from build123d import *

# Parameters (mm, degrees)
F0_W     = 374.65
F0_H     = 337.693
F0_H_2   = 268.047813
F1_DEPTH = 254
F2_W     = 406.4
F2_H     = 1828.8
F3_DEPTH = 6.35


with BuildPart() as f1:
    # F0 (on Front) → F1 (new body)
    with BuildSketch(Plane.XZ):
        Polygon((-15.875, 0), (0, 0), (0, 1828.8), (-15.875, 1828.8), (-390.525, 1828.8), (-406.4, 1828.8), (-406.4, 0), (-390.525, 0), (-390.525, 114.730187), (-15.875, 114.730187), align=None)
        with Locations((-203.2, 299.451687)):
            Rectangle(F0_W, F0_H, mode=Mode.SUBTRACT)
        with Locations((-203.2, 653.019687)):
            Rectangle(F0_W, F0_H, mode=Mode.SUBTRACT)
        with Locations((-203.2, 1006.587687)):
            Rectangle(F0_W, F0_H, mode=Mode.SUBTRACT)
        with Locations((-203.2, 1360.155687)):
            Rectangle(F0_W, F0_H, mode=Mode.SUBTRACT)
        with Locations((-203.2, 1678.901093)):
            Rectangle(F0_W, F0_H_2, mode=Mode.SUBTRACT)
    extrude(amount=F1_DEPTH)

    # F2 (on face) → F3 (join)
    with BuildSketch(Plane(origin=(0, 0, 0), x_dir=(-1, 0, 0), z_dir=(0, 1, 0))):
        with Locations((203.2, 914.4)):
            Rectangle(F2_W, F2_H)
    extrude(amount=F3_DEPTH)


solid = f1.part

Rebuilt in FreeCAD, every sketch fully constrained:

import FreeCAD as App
import Part
import Sketcher
from FreeCAD import Vector
Q = App.Units.Quantity


def add_polygon(sketch, points):
    """Adds a closed chain of lines whose ends are joined by coincident constraints."""
    first, n = sketch.GeometryCount, len(points)
    for a, b in zip(points, points[1:] + points[:1]):
        sketch.addGeometry(Part.LineSegment(App.Vector(*a, 0), App.Vector(*b, 0)), False)
    for i in range(n):
        sketch.addConstraint(Sketcher.Constraint("Coincident", first + i, 2, first + (i + 1) % n, 1))

doc = App.newDocument("Part")
body = doc.addObject("PartDesign::Body", "Body")

sketch1 = body.newObject("Sketcher::SketchObject", "Sketch")
sketch1.AttachmentSupport = (doc.getObject("XZ_Plane"), [""])
sketch1.MapMode = "FlatFace"
add_polygon(sketch1, [(-15.875, 0), (0, 0), (0, 1828.8), (-406.4, 1828.8), (-406.4, 0), (-390.525, 0), (-390.525, 114.730187), (-15.875, 114.730187)])
add_polygon(sketch1, [(-15.875, 130.605187), (-390.525, 130.605187), (-390.525, 468.298187), (-15.875, 468.298187)])
add_polygon(sketch1, [(-15.875, 484.173187), (-390.525, 484.173187), (-390.525, 821.866187), (-15.875, 821.866187)])
add_polygon(sketch1, [(-15.875, 837.741187), (-390.525, 837.741187), (-390.525, 1175.434187), (-15.875, 1175.434187)])
add_polygon(sketch1, [(-15.875, 1191.309187), (-390.525, 1191.309187), (-390.525, 1529.002187), (-15.875, 1529.002187)])
add_polygon(sketch1, [(-15.875, 1544.877187), (-390.525, 1544.877187), (-390.525, 1812.925), (-15.875, 1812.925)])
sketch1.addConstraint(Sketcher.Constraint("Horizontal", 0))
sketch1.addConstraint(Sketcher.Constraint("Vertical", 1))
sketch1.addConstraint(Sketcher.Constraint("Horizontal", 2))
sketch1.addConstraint(Sketcher.Constraint("Vertical", 3))
sketch1.addConstraint(Sketcher.Constraint("Horizontal", 4))
sketch1.addConstraint(Sketcher.Constraint("Vertical", 5))
sketch1.addConstraint(Sketcher.Constraint("Horizontal", 6))
sketch1.addConstraint(Sketcher.Constraint("Vertical", 7))
sketch1.addConstraint(Sketcher.Constraint("Horizontal", 8))
sketch1.addConstraint(Sketcher.Constraint("Vertical", 9))
sketch1.addConstraint(Sketcher.Constraint("Horizontal", 10))
sketch1.addConstraint(Sketcher.Constraint("Vertical", 11))
sketch1.addConstraint(Sketcher.Constraint("Horizontal", 12))
sketch1.addConstraint(Sketcher.Constraint("Vertical", 13))
sketch1.addConstraint(Sketcher.Constraint("Horizontal", 14))
sketch1.addConstraint(Sketcher.Constraint("Vertical", 15))
sketch1.addConstraint(Sketcher.Constraint("Horizontal", 16))
sketch1.addConstraint(Sketcher.Constraint("Vertical", 17))
sketch1.addConstraint(Sketcher.Constraint("Horizontal", 18))
sketch1.addConstraint(Sketcher.Constraint("Vertical", 19))
sketch1.addConstraint(Sketcher.Constraint("Horizontal", 20))
sketch1.addConstraint(Sketcher.Constraint("Vertical", 21))
sketch1.addConstraint(Sketcher.Constraint("Horizontal", 22))
sketch1.addConstraint(Sketcher.Constraint("Vertical", 23))
sketch1.addConstraint(Sketcher.Constraint("Horizontal", 24))
sketch1.addConstraint(Sketcher.Constraint("Vertical", 25))
sketch1.addConstraint(Sketcher.Constraint("Horizontal", 26))
sketch1.addConstraint(Sketcher.Constraint("Vertical", 27))
sketch1.addConstraint(Sketcher.Constraint("Coincident", 0, 2, -1, 1))
sketch1.addConstraint(Sketcher.Constraint("PointOnObject", 3, 2, -1))
sketch1.addConstraint(Sketcher.Constraint("Vertical", 5, 2, 8, 2))
sketch1.addConstraint(Sketcher.Constraint("Vertical", 7, 2, 10, 2))
sketch1.addConstraint(Sketcher.Constraint("Vertical", 9, 2, 12, 2))
sketch1.addConstraint(Sketcher.Constraint("Vertical", 11, 2, 14, 2))
sketch1.addConstraint(Sketcher.Constraint("Vertical", 13, 2, 16, 2))
sketch1.addConstraint(Sketcher.Constraint("Vertical", 15, 2, 18, 2))
sketch1.addConstraint(Sketcher.Constraint("Vertical", 17, 2, 20, 2))
sketch1.addConstraint(Sketcher.Constraint("Vertical", 19, 2, 22, 2))
sketch1.addConstraint(Sketcher.Constraint("Vertical", 21, 2, 24, 2))
sketch1.addConstraint(Sketcher.Constraint("Vertical", 23, 2, 26, 2))
sketch1.addConstraint(Sketcher.Constraint("Equal", 0, 4))
sketch1.addConstraint(Sketcher.Constraint("Equal", 11, 13))
sketch1.addConstraint(Sketcher.Constraint("Equal", 15, 17))
sketch1.addConstraint(Sketcher.Constraint("Equal", 19, 21))
sketch1.addConstraint(Sketcher.Constraint("DistanceX", 2, 2, 2, 1, Q("16 in")))
sketch1.addConstraint(Sketcher.Constraint("DistanceY", 1, 1, 1, 2, Q("72 in")))
sketch1.addConstraint(Sketcher.Constraint("DistanceX", 6, 1, 6, 2, Q("14.75 in")))
sketch1.addConstraint(Sketcher.Constraint("DistanceY", 9, 1, 9, 2, Q("13.295 in")))
sketch1.addConstraint(Sketcher.Constraint("DistanceY", 5, 2, 9, 2, Q("13.92 in")))
sketch1.addConstraint(Sketcher.Constraint("DistanceY", 8, 2, 12, 2, Q("13.92 in")))
sketch1.addConstraint(Sketcher.Constraint("DistanceY", 12, 2, 16, 2, Q("13.92 in")))
sketch1.addConstraint(Sketcher.Constraint("DistanceY", 16, 2, 20, 2, Q("13.92 in")))
sketch1.addConstraint(Sketcher.Constraint("DistanceY", 20, 2, 24, 2, Q("13.92 in")))
sketch1.addConstraint(Sketcher.Constraint("DistanceY", -1, 1, 25, 2, Q("71.375 in")))
sketch1.addConstraint(Sketcher.Constraint("DistanceY", 5, 1, 5, 2, 114.730187))
pad1 = body.newObject("PartDesign::Pad", "Pad")
pad1.Profile = sketch1
pad1.Length = Q("10 in")

sketch2 = body.newObject("Sketcher::SketchObject", "Sketch001")
sketch2.AttachmentSupport = (doc.getObject("XZ_Plane"), [""])
sketch2.MapMode = "FlatFace"
add_polygon(sketch2, [(0, 1828.8), (0, 0), (-406.4, 0), (-406.4, 1828.8)])
sketch2.addConstraint(Sketcher.Constraint("Vertical", 0))
sketch2.addConstraint(Sketcher.Constraint("Horizontal", 1))
sketch2.addConstraint(Sketcher.Constraint("Vertical", 2))
sketch2.addConstraint(Sketcher.Constraint("Horizontal", 3))
sketch2.addConstraint(Sketcher.Constraint("Coincident", 0, 2, -1, 1))
sketch2.addConstraint(Sketcher.Constraint("DistanceX", 1, 2, 1, 1, Q("16 in")))
sketch2.addConstraint(Sketcher.Constraint("DistanceY", 0, 2, 0, 1, Q("72 in")))
pad2 = body.newObject("PartDesign::Pad", "Pad001")
pad2.Profile = sketch2
pad2.Length = Q("0.25 in")
pad2.Reversed = True

doc.recompute()
